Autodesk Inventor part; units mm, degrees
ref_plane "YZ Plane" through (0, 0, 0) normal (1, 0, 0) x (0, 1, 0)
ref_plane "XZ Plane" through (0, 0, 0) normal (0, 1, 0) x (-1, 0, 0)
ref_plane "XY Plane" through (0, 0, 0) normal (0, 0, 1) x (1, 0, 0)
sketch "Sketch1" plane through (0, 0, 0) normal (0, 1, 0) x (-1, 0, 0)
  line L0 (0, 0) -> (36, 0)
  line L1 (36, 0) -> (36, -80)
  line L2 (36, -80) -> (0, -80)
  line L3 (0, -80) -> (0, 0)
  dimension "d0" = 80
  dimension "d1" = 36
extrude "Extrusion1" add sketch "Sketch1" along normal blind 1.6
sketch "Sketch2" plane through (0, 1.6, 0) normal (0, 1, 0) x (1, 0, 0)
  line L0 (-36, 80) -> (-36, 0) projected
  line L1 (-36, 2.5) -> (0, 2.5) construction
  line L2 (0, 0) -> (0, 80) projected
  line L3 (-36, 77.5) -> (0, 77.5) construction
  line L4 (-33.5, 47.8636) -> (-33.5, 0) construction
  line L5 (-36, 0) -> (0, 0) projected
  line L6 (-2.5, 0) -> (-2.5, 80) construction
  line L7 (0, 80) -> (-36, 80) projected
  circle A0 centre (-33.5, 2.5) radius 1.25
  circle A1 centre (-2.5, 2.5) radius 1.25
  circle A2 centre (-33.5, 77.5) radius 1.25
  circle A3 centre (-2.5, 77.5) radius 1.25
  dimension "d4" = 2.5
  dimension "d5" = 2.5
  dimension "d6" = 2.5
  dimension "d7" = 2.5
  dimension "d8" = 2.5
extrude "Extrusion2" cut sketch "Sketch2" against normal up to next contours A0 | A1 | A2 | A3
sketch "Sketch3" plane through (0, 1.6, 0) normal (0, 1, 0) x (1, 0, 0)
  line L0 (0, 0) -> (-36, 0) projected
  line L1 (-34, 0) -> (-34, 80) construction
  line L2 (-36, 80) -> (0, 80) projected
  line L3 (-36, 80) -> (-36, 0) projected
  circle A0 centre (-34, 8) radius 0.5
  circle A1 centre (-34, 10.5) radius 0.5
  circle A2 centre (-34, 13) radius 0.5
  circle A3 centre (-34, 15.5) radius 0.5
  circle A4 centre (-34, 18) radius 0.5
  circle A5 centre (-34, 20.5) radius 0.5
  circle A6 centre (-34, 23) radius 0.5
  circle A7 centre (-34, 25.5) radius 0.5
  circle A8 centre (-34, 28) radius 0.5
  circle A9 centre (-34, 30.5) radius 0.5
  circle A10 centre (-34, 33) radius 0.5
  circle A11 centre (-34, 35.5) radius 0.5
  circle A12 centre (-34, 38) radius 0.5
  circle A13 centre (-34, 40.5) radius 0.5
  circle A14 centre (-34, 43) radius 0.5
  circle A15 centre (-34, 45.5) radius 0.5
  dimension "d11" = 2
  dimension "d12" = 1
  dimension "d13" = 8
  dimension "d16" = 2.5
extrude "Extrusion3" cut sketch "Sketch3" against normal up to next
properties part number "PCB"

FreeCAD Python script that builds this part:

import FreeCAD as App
import Part
import Sketcher
Q = App.Units.Quantity


def add_polygon(sketch, points):
    """Adds a closed chain of lines whose ends are joined by coincident constraints."""
    first, n = sketch.GeometryCount, len(points)
    for a, b in zip(points, points[1:] + points[:1]):
        sketch.addGeometry(Part.LineSegment(App.Vector(*a, 0), App.Vector(*b, 0)), False)
    for i in range(n):
        sketch.addConstraint(Sketcher.Constraint("Coincident", first + i, 2, first + (i + 1) % n, 1))

doc = App.newDocument("Part")
params = doc.addObject("Spreadsheet::Sheet", "Params")
for row, (alias, value) in enumerate([
    ("sketch1_width", "36 mm"),
    ("sketch1_height", "80 mm"),
    ("pad1_length", "1.6 mm"),
    ("sketch2_diameter", "2.5 mm"),
    ("sketch3_diameter", "1 mm"),
], start=1):
    params.set(f"A{row}", alias)
    params.set(f"B{row}", "=" + value)
    params.setAlias(f"B{row}", alias)

body = doc.addObject("PartDesign::Body", "Body")

# Sketch on XZ plane
sketch1 = body.newObject("Sketcher::SketchObject", "Sketch")
sketch1.AttachmentSupport = (doc.getObject("XZ_Plane"), [""])
sketch1.MapMode = "FlatFace"
add_polygon(sketch1, [(-36, 0), (0, 0), (0, -80), (-36, -80)])  # lines 0-3
sketch1.addConstraint([
    Sketcher.Constraint("Horizontal", 0),
    Sketcher.Constraint("Vertical", 1),
    Sketcher.Constraint("Horizontal", 2),
    Sketcher.Constraint("Vertical", 3),
    Sketcher.Constraint("Coincident", 0, 2, -1, 1),
    Sketcher.Constraint("DistanceX", 0, 1, 0, 2, Q("36 mm")),
    Sketcher.Constraint("DistanceY", 1, 2, 1, 1, Q("80 mm")),
])
sketch1.setExpression("Constraints[9]", "Params.sketch1_width")
sketch1.setExpression("Constraints[10]", "Params.sketch1_height")
pad1 = body.newObject("PartDesign::Pad", "Pad")
pad1.Profile = sketch1
pad1.setExpression("Length", "Params.pad1_length")
pad1.Reversed = True

# Sketch on XZ plane
sketch2 = body.newObject("Sketcher::SketchObject", "Sketch001")
sketch2.AttachmentSupport = (doc.getObject("XZ_Plane"), [""])
sketch2.MapMode = "FlatFace"
sketch2.AttachmentOffset = App.Placement(App.Vector(0, 0, -1.6), App.Rotation())
sketch2.addGeometry([
    Part.Circle(App.Vector(-33.5, -2.5, 0), App.Vector(0, 0, 1), 1.2),
    Part.Circle(App.Vector(-2.5, -2.5, 0), App.Vector(0, 0, 1), 1.2),
    Part.Circle(App.Vector(-33.5, -77.5, 0), App.Vector(0, 0, 1), 1.2),
    Part.Circle(App.Vector(-2.5, -77.5, 0), App.Vector(0, 0, 1), 1.2),
], False)
sketch2.addConstraint([
    Sketcher.Constraint("Equal", 0, 1),
    Sketcher.Constraint("Equal", 1, 2),
    Sketcher.Constraint("Equal", 2, 3),
    Sketcher.Constraint("Horizontal", 0, 3, 1, 3),
    Sketcher.Constraint("Horizontal", 2, 3, 3, 3),
    Sketcher.Constraint("Vertical", 0, 3, 2, 3),
    Sketcher.Constraint("Vertical", 1, 3, 3, 3),
    Sketcher.Constraint("Diameter", 0, Q("2.5 mm")),
    Sketcher.Constraint("DistanceY", 0, 3, -1, 1, Q("2.5 mm")),
    Sketcher.Constraint("DistanceX", 1, 3, -1, 1, Q("2.5 mm")),
    Sketcher.Constraint("DistanceX", 0, 3, 1, 3, Q("31 mm")),
    Sketcher.Constraint("DistanceY", 2, 3, 0, 3, Q("75 mm")),
])
sketch2.setExpression("Constraints[7]", "Params.sketch2_diameter")
pocket1 = body.newObject("PartDesign::Pocket", "Pocket")
pocket1.Profile = sketch2
pocket1.Type = "UpToFirst"
pocket1.Reversed = True

# Sketch on XZ plane
sketch3 = body.newObject("Sketcher::SketchObject", "Sketch002")
sketch3.AttachmentSupport = (doc.getObject("XZ_Plane"), [""])
sketch3.MapMode = "FlatFace"
sketch3.AttachmentOffset = App.Placement(App.Vector(0, 0, -1.6), App.Rotation())
sketch3.addGeometry([
    Part.Circle(App.Vector(-34, -8, 0), App.Vector(0, 0, 1), 0.5),  # 0
    Part.Circle(App.Vector(-34, -10.5, 0), App.Vector(0, 0, 1), 0.5),  # 1
    Part.Circle(App.Vector(-34, -13, 0), App.Vector(0, 0, 1), 0.5),  # 2
    Part.Circle(App.Vector(-34, -15.5, 0), App.Vector(0, 0, 1), 0.5),  # 3
    Part.Circle(App.Vector(-34, -18, 0), App.Vector(0, 0, 1), 0.5),  # 4
    Part.Circle(App.Vector(-34, -20.5, 0), App.Vector(0, 0, 1), 0.5),  # 5
    Part.Circle(App.Vector(-34, -23, 0), App.Vector(0, 0, 1), 0.5),  # 6
    Part.Circle(App.Vector(-34, -25.5, 0), App.Vector(0, 0, 1), 0.5),  # 7
    Part.Circle(App.Vector(-34, -28, 0), App.Vector(0, 0, 1), 0.5),  # 8
    Part.Circle(App.Vector(-34, -30.5, 0), App.Vector(0, 0, 1), 0.5),  # 9
    Part.Circle(App.Vector(-34, -33, 0), App.Vector(0, 0, 1), 0.5),  # 10
    Part.Circle(App.Vector(-34, -35.5, 0), App.Vector(0, 0, 1), 0.5),  # 11
    Part.Circle(App.Vector(-34, -38, 0), App.Vector(0, 0, 1), 0.5),  # 12
    Part.Circle(App.Vector(-34, -40.5, 0), App.Vector(0, 0, 1), 0.5),  # 13
    Part.Circle(App.Vector(-34, -43, 0), App.Vector(0, 0, 1), 0.5),  # 14
    Part.Circle(App.Vector(-34, -45.5, 0), App.Vector(0, 0, 1), 0.5),  # 15
], False)
sketch3.addConstraint([
    Sketcher.Constraint("Equal", 0, 1),
    Sketcher.Constraint("Equal", 1, 2),
    Sketcher.Constraint("Equal", 2, 3),
    Sketcher.Constraint("Equal", 3, 4),
    Sketcher.Constraint("Equal", 4, 5),
    Sketcher.Constraint("Equal", 5, 6),
    Sketcher.Constraint("Equal", 6, 7),
    Sketcher.Constraint("Equal", 7, 8),
    Sketcher.Constraint("Equal", 8, 9),
    Sketcher.Constraint("Equal", 9, 10),
    Sketcher.Constraint("Equal", 10, 11),
    Sketcher.Constraint("Equal", 11, 12),
    Sketcher.Constraint("Equal", 12, 13),
    Sketcher.Constraint("Equal", 13, 14),
    Sketcher.Constraint("Equal", 14, 15),
    Sketcher.Constraint("Vertical", 0, 3, 1, 3),
    Sketcher.Constraint("Vertical", 1, 3, 2, 3),
    Sketcher.Constraint("Vertical", 2, 3, 3, 3),
    Sketcher.Constraint("Vertical", 3, 3, 4, 3),
    Sketcher.Constraint("Vertical", 4, 3, 5, 3),
    Sketcher.Constraint("Vertical", 5, 3, 6, 3),
    Sketcher.Constraint("Vertical", 6, 3, 7, 3),
    Sketcher.Constraint("Vertical", 7, 3, 8, 3),
    Sketcher.Constraint("Vertical", 8, 3, 9, 3),
    Sketcher.Constraint("Vertical", 9, 3, 10, 3),
    Sketcher.Constraint("Vertical", 10, 3, 11, 3),
    Sketcher.Constraint("Vertical", 11, 3, 12, 3),
    Sketcher.Constraint("Vertical", 12, 3, 13, 3),
    Sketcher.Constraint("Vertical", 13, 3, 14, 3),
    Sketcher.Constraint("Vertical", 14, 3, 15, 3),
    Sketcher.Constraint("Diameter", 0, Q("1 mm")),
    Sketcher.Constraint("DistanceY", 0, 3, -1, 1, Q("8 mm")),
    Sketcher.Constraint("DistanceY", 4, 3, 0, 3, Q("10 mm")),
    Sketcher.Constraint("DistanceY", 5, 3, 1, 3, Q("10 mm")),
    Sketcher.Constraint("DistanceY", 6, 3, 2, 3, Q("10 mm")),
    Sketcher.Constraint("DistanceY", 7, 3, 3, 3, Q("10 mm")),
    Sketcher.Constraint("DistanceY", 8, 3, 4, 3, Q("10 mm")),
    Sketcher.Constraint("DistanceY", 9, 3, 5, 3, Q("10 mm")),
    Sketcher.Constraint("DistanceY", 10, 3, 6, 3, Q("10 mm")),
    Sketcher.Constraint("DistanceY", 11, 3, 7, 3, Q("10 mm")),
    Sketcher.Constraint("DistanceY", 12, 3, 8, 3, Q("10 mm")),
    Sketcher.Constraint("DistanceY", 13, 3, 9, 3, Q("10 mm")),
    Sketcher.Constraint("DistanceY", 14, 3, 10, 3, Q("10 mm")),
    Sketcher.Constraint("DistanceY", 15, 3, 11, 3, Q("10 mm")),
    Sketcher.Constraint("DistanceY", 1, 3, 0, 3, Q("2.5 mm")),
    Sketcher.Constraint("DistanceY", 2, 3, 1, 3, Q("2.5 mm")),
    Sketcher.Constraint("DistanceY", 3, 3, 2, 3, Q("2.5 mm")),
    Sketcher.Constraint("DistanceX", 0, 3, -1, 1, Q("34 mm")),
])
sketch3.setExpression("Constraints[30]", "Params.sketch3_diameter")
pocket2 = body.newObject("PartDesign::Pocket", "Pocket001")
pocket2.Profile = sketch3
pocket2.Type = "UpToFirst"
pocket2.Reversed = True

doc.recompute()
